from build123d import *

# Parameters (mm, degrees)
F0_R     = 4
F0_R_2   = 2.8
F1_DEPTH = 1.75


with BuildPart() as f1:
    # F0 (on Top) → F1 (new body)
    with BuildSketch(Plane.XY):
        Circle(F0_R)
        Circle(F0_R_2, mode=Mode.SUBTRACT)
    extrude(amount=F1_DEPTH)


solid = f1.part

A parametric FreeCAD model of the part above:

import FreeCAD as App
import Part
import Sketcher

V = App.Vector

doc = App.newDocument("Part")
body = doc.addObject("PartDesign::Body", "Body")

sketch1 = body.newObject("Sketcher::SketchObject", "Sketch")
sketch1.AttachmentSupport = (doc.getObject("XY_Plane"), [""])
sketch1.MapMode = "FlatFace"
sketch1.addGeometry(Part.Circle(V(0, 0, 0), V(0, 0, 1), 4), False)
sketch1.addGeometry(Part.Circle(V(0, 0, 0), V(0, 0, 1), 2.8), False)
sketch1.addConstraint(Sketcher.Constraint("Coincident", 0, 3, -1, 1))
sketch1.addConstraint(Sketcher.Constraint("Coincident", 1, 3, -1, 1))
sketch1.addConstraint(Sketcher.Constraint("Diameter", 0, 8.0))
sketch1.addConstraint(Sketcher.Constraint("Diameter", 1, 5.6))
pad1 = body.newObject("PartDesign::Pad", "Pad")
pad1.Profile = sketch1
pad1.Length = 1.75

doc.recompute()
